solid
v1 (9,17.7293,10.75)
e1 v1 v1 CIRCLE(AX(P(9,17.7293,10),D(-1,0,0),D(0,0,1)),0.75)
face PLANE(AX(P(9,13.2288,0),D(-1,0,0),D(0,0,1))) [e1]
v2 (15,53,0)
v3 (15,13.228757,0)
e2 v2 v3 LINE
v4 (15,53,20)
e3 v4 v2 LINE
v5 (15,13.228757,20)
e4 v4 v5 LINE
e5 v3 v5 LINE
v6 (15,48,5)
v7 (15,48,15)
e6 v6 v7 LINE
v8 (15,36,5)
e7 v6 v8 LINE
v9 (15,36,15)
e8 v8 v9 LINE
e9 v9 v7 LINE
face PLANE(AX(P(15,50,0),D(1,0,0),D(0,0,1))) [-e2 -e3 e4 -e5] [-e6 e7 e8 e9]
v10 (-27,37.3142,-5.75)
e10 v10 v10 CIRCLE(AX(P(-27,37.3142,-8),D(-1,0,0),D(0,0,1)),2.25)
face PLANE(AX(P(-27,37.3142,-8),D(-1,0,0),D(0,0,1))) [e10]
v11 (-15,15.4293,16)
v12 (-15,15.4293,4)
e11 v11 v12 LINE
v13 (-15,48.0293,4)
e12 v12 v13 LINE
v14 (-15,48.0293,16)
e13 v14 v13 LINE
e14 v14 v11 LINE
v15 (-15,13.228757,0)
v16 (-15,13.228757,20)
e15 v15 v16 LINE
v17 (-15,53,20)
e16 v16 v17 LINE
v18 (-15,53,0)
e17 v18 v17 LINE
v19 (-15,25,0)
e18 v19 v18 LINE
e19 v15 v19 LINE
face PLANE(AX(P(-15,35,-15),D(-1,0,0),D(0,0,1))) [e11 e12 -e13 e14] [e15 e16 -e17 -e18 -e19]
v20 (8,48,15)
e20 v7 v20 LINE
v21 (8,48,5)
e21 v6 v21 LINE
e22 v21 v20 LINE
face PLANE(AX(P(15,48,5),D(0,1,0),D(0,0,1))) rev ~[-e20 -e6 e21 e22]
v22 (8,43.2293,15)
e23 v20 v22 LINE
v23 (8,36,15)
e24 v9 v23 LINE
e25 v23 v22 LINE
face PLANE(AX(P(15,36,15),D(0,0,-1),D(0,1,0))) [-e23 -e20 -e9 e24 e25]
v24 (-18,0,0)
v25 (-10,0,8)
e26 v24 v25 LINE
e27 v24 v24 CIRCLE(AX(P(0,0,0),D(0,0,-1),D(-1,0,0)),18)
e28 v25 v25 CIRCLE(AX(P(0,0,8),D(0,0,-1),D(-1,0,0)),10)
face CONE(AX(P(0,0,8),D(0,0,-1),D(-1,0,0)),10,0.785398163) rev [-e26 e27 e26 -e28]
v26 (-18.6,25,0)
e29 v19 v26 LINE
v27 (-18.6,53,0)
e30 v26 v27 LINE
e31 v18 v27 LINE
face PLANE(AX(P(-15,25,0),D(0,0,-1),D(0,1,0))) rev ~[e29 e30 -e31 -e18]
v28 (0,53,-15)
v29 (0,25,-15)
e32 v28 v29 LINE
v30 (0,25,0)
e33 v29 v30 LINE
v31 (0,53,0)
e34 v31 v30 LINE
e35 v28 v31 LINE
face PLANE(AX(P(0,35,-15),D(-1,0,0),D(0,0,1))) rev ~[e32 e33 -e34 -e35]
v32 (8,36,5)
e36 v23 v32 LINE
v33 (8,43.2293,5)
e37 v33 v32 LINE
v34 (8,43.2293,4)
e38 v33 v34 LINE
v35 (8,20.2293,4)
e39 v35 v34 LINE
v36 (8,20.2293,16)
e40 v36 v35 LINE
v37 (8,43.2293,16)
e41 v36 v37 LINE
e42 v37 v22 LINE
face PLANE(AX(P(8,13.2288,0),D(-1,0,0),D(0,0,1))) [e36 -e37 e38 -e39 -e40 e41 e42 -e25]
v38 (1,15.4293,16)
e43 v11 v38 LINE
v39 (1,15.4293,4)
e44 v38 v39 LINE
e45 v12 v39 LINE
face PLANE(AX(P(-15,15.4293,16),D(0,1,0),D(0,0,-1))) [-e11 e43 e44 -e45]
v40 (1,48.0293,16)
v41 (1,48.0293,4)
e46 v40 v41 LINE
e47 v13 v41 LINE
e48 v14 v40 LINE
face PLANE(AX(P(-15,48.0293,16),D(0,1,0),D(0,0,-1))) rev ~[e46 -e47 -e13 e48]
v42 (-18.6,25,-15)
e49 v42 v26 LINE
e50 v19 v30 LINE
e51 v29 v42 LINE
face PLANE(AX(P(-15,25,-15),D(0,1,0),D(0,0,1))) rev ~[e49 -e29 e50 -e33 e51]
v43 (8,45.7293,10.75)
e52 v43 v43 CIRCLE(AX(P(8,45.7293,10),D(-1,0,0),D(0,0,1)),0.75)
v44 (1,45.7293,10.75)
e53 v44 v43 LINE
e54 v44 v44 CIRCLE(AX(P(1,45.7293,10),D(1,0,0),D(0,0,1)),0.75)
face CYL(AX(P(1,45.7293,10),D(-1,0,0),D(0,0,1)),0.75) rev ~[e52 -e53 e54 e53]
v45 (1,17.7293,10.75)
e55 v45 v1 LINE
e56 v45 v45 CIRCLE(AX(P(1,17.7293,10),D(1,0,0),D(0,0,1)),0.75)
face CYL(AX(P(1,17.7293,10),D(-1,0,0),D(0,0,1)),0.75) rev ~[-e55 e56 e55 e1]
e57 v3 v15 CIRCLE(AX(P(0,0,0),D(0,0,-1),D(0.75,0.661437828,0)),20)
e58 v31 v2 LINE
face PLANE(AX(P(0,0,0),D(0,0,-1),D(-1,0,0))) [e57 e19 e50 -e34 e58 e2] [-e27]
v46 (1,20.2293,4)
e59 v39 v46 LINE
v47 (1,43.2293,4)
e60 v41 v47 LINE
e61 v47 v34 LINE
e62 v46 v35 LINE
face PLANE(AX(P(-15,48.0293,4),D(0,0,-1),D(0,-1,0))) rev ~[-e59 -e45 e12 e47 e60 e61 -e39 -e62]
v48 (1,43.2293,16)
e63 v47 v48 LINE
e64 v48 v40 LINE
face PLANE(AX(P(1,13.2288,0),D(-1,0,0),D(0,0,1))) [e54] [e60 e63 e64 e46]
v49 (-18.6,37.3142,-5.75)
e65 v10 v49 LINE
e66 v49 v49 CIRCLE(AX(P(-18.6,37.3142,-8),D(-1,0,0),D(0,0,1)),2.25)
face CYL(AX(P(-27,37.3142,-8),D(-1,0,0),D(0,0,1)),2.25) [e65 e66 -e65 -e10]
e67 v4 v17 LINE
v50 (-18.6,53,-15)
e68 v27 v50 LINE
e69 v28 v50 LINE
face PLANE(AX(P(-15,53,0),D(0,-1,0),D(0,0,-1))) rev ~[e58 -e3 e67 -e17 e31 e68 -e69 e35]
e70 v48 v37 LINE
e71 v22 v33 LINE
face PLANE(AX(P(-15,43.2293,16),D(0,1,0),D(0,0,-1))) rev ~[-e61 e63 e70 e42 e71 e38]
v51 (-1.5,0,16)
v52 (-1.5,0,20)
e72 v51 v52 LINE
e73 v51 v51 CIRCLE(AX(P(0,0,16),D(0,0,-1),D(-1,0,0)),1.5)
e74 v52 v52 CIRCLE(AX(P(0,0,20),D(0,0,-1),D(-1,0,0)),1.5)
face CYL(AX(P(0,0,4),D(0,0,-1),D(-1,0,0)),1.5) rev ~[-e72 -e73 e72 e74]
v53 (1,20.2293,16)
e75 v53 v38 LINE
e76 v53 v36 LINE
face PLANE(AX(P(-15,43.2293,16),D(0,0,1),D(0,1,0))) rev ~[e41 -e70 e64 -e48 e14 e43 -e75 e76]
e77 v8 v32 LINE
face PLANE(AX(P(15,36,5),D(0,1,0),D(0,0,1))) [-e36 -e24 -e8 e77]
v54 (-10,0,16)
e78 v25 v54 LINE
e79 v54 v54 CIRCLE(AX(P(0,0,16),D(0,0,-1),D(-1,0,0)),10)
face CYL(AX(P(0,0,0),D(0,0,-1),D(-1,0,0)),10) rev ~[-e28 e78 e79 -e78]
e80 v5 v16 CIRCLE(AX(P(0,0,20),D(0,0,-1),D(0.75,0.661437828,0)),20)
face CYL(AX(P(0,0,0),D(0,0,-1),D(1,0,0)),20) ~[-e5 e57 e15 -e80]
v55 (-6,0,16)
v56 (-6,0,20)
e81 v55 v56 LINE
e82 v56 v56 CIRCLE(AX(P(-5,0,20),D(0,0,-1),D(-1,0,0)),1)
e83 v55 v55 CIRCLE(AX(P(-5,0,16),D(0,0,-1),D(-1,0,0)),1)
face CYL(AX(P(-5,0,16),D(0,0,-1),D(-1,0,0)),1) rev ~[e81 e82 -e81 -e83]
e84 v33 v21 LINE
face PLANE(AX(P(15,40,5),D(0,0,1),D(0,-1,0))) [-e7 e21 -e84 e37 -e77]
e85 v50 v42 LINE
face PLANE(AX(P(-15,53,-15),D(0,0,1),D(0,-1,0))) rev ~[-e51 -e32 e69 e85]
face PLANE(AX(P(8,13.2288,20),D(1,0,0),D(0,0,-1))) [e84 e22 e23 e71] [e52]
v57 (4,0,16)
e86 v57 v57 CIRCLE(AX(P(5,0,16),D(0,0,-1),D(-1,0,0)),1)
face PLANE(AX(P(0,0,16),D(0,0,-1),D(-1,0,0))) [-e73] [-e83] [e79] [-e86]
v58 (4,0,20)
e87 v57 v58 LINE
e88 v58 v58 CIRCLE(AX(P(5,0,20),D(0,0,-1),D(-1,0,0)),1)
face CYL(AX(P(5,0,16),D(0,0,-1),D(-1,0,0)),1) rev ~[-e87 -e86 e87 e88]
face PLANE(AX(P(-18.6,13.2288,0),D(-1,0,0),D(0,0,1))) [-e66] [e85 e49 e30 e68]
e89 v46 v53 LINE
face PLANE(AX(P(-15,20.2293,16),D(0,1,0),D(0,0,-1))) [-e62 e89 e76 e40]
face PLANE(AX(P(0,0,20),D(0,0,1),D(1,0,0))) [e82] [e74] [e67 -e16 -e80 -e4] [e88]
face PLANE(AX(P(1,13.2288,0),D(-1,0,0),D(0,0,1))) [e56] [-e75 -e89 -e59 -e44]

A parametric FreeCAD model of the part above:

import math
import FreeCAD as App
import Part
import Sketcher


def edges_at(feature, points):
    """Names of the edges that pass closest to the given points."""
    edges = feature.Shape.Edges
    near = lambda p: min(range(len(edges)), key=lambda i: edges[i].distToShape(Part.Vertex(*p))[0])
    return sorted({f"Edge{near(p) + 1}" for p in points})

doc = App.newDocument("Part")
body = doc.addObject("PartDesign::Body", "Body")

# Sketch on XY plane
sketch1 = body.newObject("Sketcher::SketchObject", "Sketch")
sketch1.AttachmentSupport = (doc.getObject("XY_Plane"), [""])
sketch1.MapMode = "FlatFace"
sketch1.addGeometry([
    Part.ArcOfCircle(Part.Circle(App.Vector(0, 0, 0), App.Vector(0, 0, 1), 20), math.radians(139), math.radians(401)),
    Part.LineSegment(App.Vector(15, 13, 0), App.Vector(15, 50, 0)),
    Part.LineSegment(App.Vector(15, 50, 0), App.Vector(-15, 50, 0)),
    Part.LineSegment(App.Vector(-15, 50, 0), App.Vector(-15, 13, 0)),
], False)
sketch1.addConstraint([
    Sketcher.Constraint("Coincident", 0, 2, 1, 1),
    Sketcher.Constraint("Coincident", 1, 2, 2, 1),
    Sketcher.Constraint("Coincident", 2, 2, 3, 1),
    Sketcher.Constraint("Coincident", 3, 2, 0, 1),
    Sketcher.Constraint("Vertical", 1),
    Sketcher.Constraint("Horizontal", 2),
    Sketcher.Constraint("Vertical", 3),
    Sketcher.Constraint("Coincident", 0, 3, -1, 1),
    Sketcher.Constraint("Horizontal", 0, 2, 3, 2),
    Sketcher.Constraint("Radius", 0, 20.0),
    Sketcher.Constraint("DistanceX", 2, 2, 2, 1, 30.0),
    Sketcher.Constraint("DistanceY", -1, 1, 1, 2, 50.0),
])
pad1 = body.newObject("PartDesign::Pad", "Pad")
pad1.Profile = sketch1
pad1.Length = 20

# Sketch on XY plane
sketch2 = body.newObject("Sketcher::SketchObject", "Sketch001")
sketch2.AttachmentSupport = (doc.getObject("XY_Plane"), [""])
sketch2.MapMode = "FlatFace"
sketch2.AttachmentOffset = App.Placement(App.Vector(0, 0, 20), App.Rotation())
sketch2.addGeometry(Part.Circle(App.Vector(0, 0, 0), App.Vector(0, 0, 1), 10), False)
sketch2.addConstraint([
    Sketcher.Constraint("Coincident", 0, 3, -1, 1),
    Sketcher.Constraint("Diameter", 0, 20.0),
])
pocket1 = body.newObject("PartDesign::Pocket", "Pocket")
pocket1.Profile = sketch2
pocket1.Length = 15

# Sketch on YZ plane
sketch3 = body.newObject("Sketcher::SketchObject", "Sketch002")
sketch3.AttachmentSupport = (doc.getObject("YZ_Plane"), [""])
sketch3.MapMode = "FlatFace"
sketch3.AttachmentOffset = App.Placement(App.Vector(0, 0, -15), App.Rotation())
sketch3.addGeometry([
    Part.LineSegment(App.Vector(43, 16, 0), App.Vector(43, 4, 0)),
    Part.LineSegment(App.Vector(43, 4, 0), App.Vector(20, 4, 0)),
    Part.LineSegment(App.Vector(20, 4, 0), App.Vector(20, 16, 0)),
    Part.LineSegment(App.Vector(20, 16, 0), App.Vector(43, 16, 0)),
], False)
sketch3.addConstraint([
    Sketcher.Constraint("Coincident", 0, 2, 1, 1),
    Sketcher.Constraint("Coincident", 1, 2, 2, 1),
    Sketcher.Constraint("Coincident", 2, 2, 3, 1),
    Sketcher.Constraint("Coincident", 3, 2, 0, 1),
    Sketcher.Constraint("Vertical", 0),
    Sketcher.Constraint("Horizontal", 1),
    Sketcher.Constraint("Vertical", 2),
    Sketcher.Constraint("Horizontal", 3),
    Sketcher.Constraint("DistanceX", 1, 2, 1, 1, 23.0),
    Sketcher.Constraint("DistanceY", 0, 2, 0, 1, 12.0),
    Sketcher.Constraint("DistanceY", -1, 1, 0, 2, 4.0),
    Sketcher.Constraint("DistanceX", -1, 1, 0, 2, 43.2293),
])
pocket2 = body.newObject("PartDesign::Pocket", "Pocket001")
pocket2.Profile = sketch3
pocket2.Length = 23
pocket2.Reversed = True

# Sketch on YZ plane
sketch4 = body.newObject("Sketcher::SketchObject", "Sketch003")
sketch4.AttachmentSupport = (doc.getObject("YZ_Plane"), [""])
sketch4.MapMode = "FlatFace"
sketch4.AttachmentOffset = App.Placement(App.Vector(0, 0, -15), App.Rotation())
sketch4.addGeometry([
    Part.LineSegment(App.Vector(48, 4, 0), App.Vector(43.2, 4, 0)),  # 0
    Part.LineSegment(App.Vector(43.2, 4, 0), App.Vector(43.2, 16, 0)),  # 1
    Part.LineSegment(App.Vector(43.2, 16, 0), App.Vector(48, 16, 0)),  # 2
    Part.LineSegment(App.Vector(48, 16, 0), App.Vector(48, 4, 0)),  # 3
    Part.LineSegment(App.Vector(20.2, 16, 0), App.Vector(20.2, 4, 0)),  # 4
    Part.LineSegment(App.Vector(20.2, 4, 0), App.Vector(15.4, 4, 0)),  # 5
    Part.LineSegment(App.Vector(15.4, 4, 0), App.Vector(15.4, 16, 0)),  # 6
    Part.LineSegment(App.Vector(15.4, 16, 0), App.Vector(20.2, 16, 0)),  # 7
], False)
sketch4.addConstraint([
    Sketcher.Constraint("Coincident", 0, 2, 1, 1),
    Sketcher.Constraint("Coincident", 1, 2, 2, 1),
    Sketcher.Constraint("Coincident", 2, 2, 3, 1),
    Sketcher.Constraint("Coincident", 3, 2, 0, 1),
    Sketcher.Constraint("Coincident", 4, 2, 5, 1),
    Sketcher.Constraint("Coincident", 5, 2, 6, 1),
    Sketcher.Constraint("Coincident", 6, 2, 7, 1),
    Sketcher.Constraint("Coincident", 7, 2, 4, 1),
    Sketcher.Constraint("Horizontal", 0),
    Sketcher.Constraint("Vertical", 1),
    Sketcher.Constraint("Horizontal", 2),
    Sketcher.Constraint("Vertical", 3),
    Sketcher.Constraint("Vertical", 4),
    Sketcher.Constraint("Horizontal", 5),
    Sketcher.Constraint("Vertical", 6),
    Sketcher.Constraint("Horizontal", 7),
    Sketcher.Constraint("Horizontal", 3, 2, 4, 2),
    Sketcher.Constraint("Horizontal", 2, 2, 6, 2),
    Sketcher.Constraint("Equal", 2, 5),
    Sketcher.Constraint("DistanceY", 1, 1, 1, 2, 12.0),
    Sketcher.Constraint("DistanceX", 0, 2, 0, 1, 4.8),
    Sketcher.Constraint("DistanceY", -1, 1, 0, 2, 4.0),
    Sketcher.Constraint("DistanceX", 4, 2, 0, 2, 23.0),
    Sketcher.Constraint("DistanceX", -1, 1, 0, 2, 43.2293),
])
pocket3 = body.newObject("PartDesign::Pocket", "Pocket002")
pocket3.Profile = sketch4
pocket3.Length = 16
pocket3.Reversed = True

# Sketch on YZ plane
sketch5 = body.newObject("Sketcher::SketchObject", "Sketch004")
sketch5.AttachmentSupport = (doc.getObject("YZ_Plane"), [""])
sketch5.MapMode = "FlatFace"
sketch5.AttachmentOffset = App.Placement(App.Vector(0, 0, 1), App.Rotation())
sketch5.addGeometry([
    Part.Circle(App.Vector(45.7, 10, 0), App.Vector(0, 0, 1), 0.8),
    Part.Circle(App.Vector(17.7, 10, 0), App.Vector(0, 0, 1), 0.8),
], False)
sketch5.addConstraint([
    Sketcher.Constraint("Equal", 0, 1),
    Sketcher.Constraint("Horizontal", 0, 3, 1, 3),
    Sketcher.Constraint("Diameter", 0, 1.5),
    Sketcher.Constraint("DistanceY", -1, 1, 0, 3, 10.0),
    Sketcher.Constraint("DistanceX", 1, 3, 0, 3, 28.0),
    Sketcher.Constraint("DistanceX", -1, 1, 0, 3, 45.7293),
])
pocket4 = body.newObject("PartDesign::Pocket", "Pocket003")
pocket4.Profile = sketch5
pocket4.Length = 8
pocket4.Reversed = True

# Sketch on YZ plane
sketch6 = body.newObject("Sketcher::SketchObject", "Sketch005")
sketch6.AttachmentSupport = (doc.getObject("YZ_Plane"), [""])
sketch6.MapMode = "FlatFace"
sketch6.AttachmentOffset = App.Placement(App.Vector(0, 0, 15), App.Rotation())
sketch6.addGeometry([
    Part.LineSegment(App.Vector(36, 5, 0), App.Vector(40, 5, 0)),
    Part.LineSegment(App.Vector(40, 5, 0), App.Vector(40, 15, 0)),
    Part.LineSegment(App.Vector(40, 15, 0), App.Vector(36, 15, 0)),
    Part.LineSegment(App.Vector(36, 15, 0), App.Vector(36, 5, 0)),
], False)
sketch6.addConstraint([
    Sketcher.Constraint("Coincident", 0, 2, 1, 1),
    Sketcher.Constraint("Coincident", 1, 2, 2, 1),
    Sketcher.Constraint("Coincident", 2, 2, 3, 1),
    Sketcher.Constraint("Coincident", 3, 2, 0, 1),
    Sketcher.Constraint("Horizontal", 0),
    Sketcher.Constraint("Vertical", 1),
    Sketcher.Constraint("Horizontal", 2),
    Sketcher.Constraint("Vertical", 3),
    Sketcher.Constraint("DistanceY", 1, 1, 1, 2, 10.0),
    Sketcher.Constraint("DistanceY", -1, 1, 0, 2, 5.0),
    Sketcher.Constraint("DistanceX", 0, 1, 0, 2, 4.0),
    Sketcher.Constraint("DistanceX", -1, 1, 0, 2, 40.0),
])
pocket5 = body.newObject("PartDesign::Pocket", "Pocket004")
pocket5.Profile = sketch6
pocket5.Length = 15.8125

# Sketch on XY plane
sketch7 = body.newObject("Sketcher::SketchObject", "Sketch006")
sketch7.AttachmentSupport = (doc.getObject("XY_Plane"), [""])
sketch7.MapMode = "FlatFace"
sketch7.AttachmentOffset = App.Placement(App.Vector(0, 0, 5), App.Rotation())
sketch7.addGeometry([
    Part.Circle(App.Vector(0, 0, 0), App.Vector(0, 0, 1), 1.5),
    Part.Circle(App.Vector(7, 0, 0), App.Vector(0, 0, 1), 1.5),
    Part.Circle(App.Vector(-7, 0, 0), App.Vector(0, 0, 1), 1.5),
], False)
sketch7.addConstraint([
    Sketcher.Constraint("Coincident", 0, 3, -1, 1),
    Sketcher.Constraint("Equal", 0, 1),
    Sketcher.Constraint("Equal", 1, 2),
    Sketcher.Constraint("Symmetric", 1, 3, 2, 3, -1, 1),
    Sketcher.Constraint("PointOnObject", 1, 3, -1),
    Sketcher.Constraint("Diameter", 0, 3.0),
    Sketcher.Constraint("DistanceX", -1, 1, 1, 3, 7.0),
])
pocket6 = body.newObject("PartDesign::Pocket", "Pocket005")
pocket6.Profile = sketch7
pocket6.Length = 8

# Sketch on XZ plane
sketch8 = body.newObject("Sketcher::SketchObject", "Sketch007")
sketch8.AttachmentSupport = (doc.getObject("XZ_Plane"), [""])
sketch8.MapMode = "FlatFace"
sketch8.AttachmentOffset = App.Placement(App.Vector(0, 0, -50), App.Rotation())
sketch8.addGeometry([
    Part.LineSegment(App.Vector(14, 0, 0), App.Vector(-15, 0, 0)),
    Part.LineSegment(App.Vector(-15, 0, 0), App.Vector(-15, 20, 0)),
    Part.LineSegment(App.Vector(-15, 20, 0), App.Vector(14, 20, 0)),
    Part.LineSegment(App.Vector(14, 20, 0), App.Vector(14, 0, 0)),
], False)
sketch8.addConstraint([
    Sketcher.Constraint("Coincident", 0, 2, 1, 1),
    Sketcher.Constraint("Coincident", 1, 2, 2, 1),
    Sketcher.Constraint("Coincident", 2, 2, 3, 1),
    Sketcher.Constraint("Coincident", 3, 2, 0, 1),
    Sketcher.Constraint("Horizontal", 0),
    Sketcher.Constraint("Vertical", 1),
    Sketcher.Constraint("Horizontal", 2),
    Sketcher.Constraint("Vertical", 3),
    Sketcher.Constraint("PointOnObject", 0, 2, -1),
    Sketcher.Constraint("DistanceY", 1, 1, 1, 2, 20.0),
    Sketcher.Constraint("DistanceX", 0, 2, -1, 1, 15.0),
    Sketcher.Constraint("DistanceX", 0, 2, 0, 1, 29.4792),
])
pad2 = body.newObject("PartDesign::Pad", "Pad001")
pad2.Profile = sketch8
pad2.Length = 10
pad2.Reversed = True

# Sketch on YZ plane
sketch9 = body.newObject("Sketcher::SketchObject", "Sketch008")
sketch9.AttachmentSupport = (doc.getObject("YZ_Plane"), [""])
sketch9.MapMode = "FlatFace"
sketch9.AttachmentOffset = App.Placement(App.Vector(0, 0, 14.4792), App.Rotation())
sketch9.addGeometry([
    Part.LineSegment(App.Vector(50, 20, 0), App.Vector(50, 0, 0)),
    Part.LineSegment(App.Vector(50, 0, 0), App.Vector(60, 0, 0)),
    Part.LineSegment(App.Vector(60, 0, 0), App.Vector(60, 20, 0)),
    Part.LineSegment(App.Vector(60, 20, 0), App.Vector(50, 20, 0)),
], False)
sketch9.addConstraint([
    Sketcher.Constraint("Coincident", 0, 2, 1, 1),
    Sketcher.Constraint("Coincident", 1, 2, 2, 1),
    Sketcher.Constraint("Coincident", 2, 2, 3, 1),
    Sketcher.Constraint("Coincident", 3, 2, 0, 1),
    Sketcher.Constraint("Vertical", 0),
    Sketcher.Constraint("Horizontal", 1),
    Sketcher.Constraint("Vertical", 2),
    Sketcher.Constraint("Horizontal", 3),
    Sketcher.Constraint("PointOnObject", 0, 2, -1),
    Sketcher.Constraint("DistanceX", 1, 1, 1, 2, 10.0),
    Sketcher.Constraint("DistanceY", 0, 2, 0, 1, 20.0),
    Sketcher.Constraint("DistanceX", -1, 1, 0, 2, 50.0),
])
pocket7 = body.newObject("PartDesign::Pocket", "Pocket006")
pocket7.Profile = sketch9
pocket7.Length = 59.6125

# Sketch on XZ plane
sketch10 = body.newObject("Sketcher::SketchObject", "Sketch009")
sketch10.AttachmentSupport = (doc.getObject("XZ_Plane"), [""])
sketch10.MapMode = "FlatFace"
sketch10.AttachmentOffset = App.Placement(App.Vector(0, 0, -50), App.Rotation())
sketch10.addGeometry([
    Part.LineSegment(App.Vector(15, 20, 0), App.Vector(15, 0, 0)),
    Part.LineSegment(App.Vector(15, 0, 0), App.Vector(-15, 0, 0)),
    Part.LineSegment(App.Vector(-15, 0, 0), App.Vector(-15, 20, 0)),
    Part.LineSegment(App.Vector(-15, 20, 0), App.Vector(15, 20, 0)),
], False)
sketch10.addConstraint([
    Sketcher.Constraint("Coincident", 0, 2, 1, 1),
    Sketcher.Constraint("Coincident", 1, 2, 2, 1),
    Sketcher.Constraint("Coincident", 2, 2, 3, 1),
    Sketcher.Constraint("Coincident", 3, 2, 0, 1),
    Sketcher.Constraint("Vertical", 0),
    Sketcher.Constraint("Horizontal", 1),
    Sketcher.Constraint("Vertical", 2),
    Sketcher.Constraint("Horizontal", 3),
    Sketcher.Constraint("Symmetric", 0, 2, 1, 2, -1, 1),
    Sketcher.Constraint("DistanceX", 1, 2, 1, 1, 30.0),
    Sketcher.Constraint("DistanceY", 0, 2, 0, 1, 20.0),
])
pad3 = body.newObject("PartDesign::Pad", "Pad002")
pad3.Profile = sketch10
pad3.Length = 10
pad3.Reversed = True

# Sketch on XY plane
sketch11 = body.newObject("Sketcher::SketchObject", "Sketch010")
sketch11.AttachmentSupport = (doc.getObject("XY_Plane"), [""])
sketch11.MapMode = "FlatFace"
sketch11.addGeometry([
    Part.LineSegment(App.Vector(15, 35, 0), App.Vector(-15, 35, 0)),
    Part.LineSegment(App.Vector(-15, 35, 0), App.Vector(-15, 60, 0)),
    Part.LineSegment(App.Vector(-15, 60, 0), App.Vector(15, 60, 0)),
    Part.LineSegment(App.Vector(15, 60, 0), App.Vector(15, 35, 0)),
], False)
sketch11.addConstraint([
    Sketcher.Constraint("Coincident", 0, 2, 1, 1),
    Sketcher.Constraint("Coincident", 1, 2, 2, 1),
    Sketcher.Constraint("Coincident", 2, 2, 3, 1),
    Sketcher.Constraint("Coincident", 3, 2, 0, 1),
    Sketcher.Constraint("Horizontal", 0),
    Sketcher.Constraint("Vertical", 1),
    Sketcher.Constraint("Horizontal", 2),
    Sketcher.Constraint("Vertical", 3),
    Sketcher.Constraint("DistanceX", 0, 2, -1, 1, 15.0),
    Sketcher.Constraint("DistanceX", -1, 1, 2, 2, 15.0),
    Sketcher.Constraint("DistanceY", 1, 1, 1, 2, 25.0),
    Sketcher.Constraint("DistanceY", -1, 1, 0, 2, 35.0),
])
pad4 = body.newObject("PartDesign::Pad", "Pad003")
pad4.Profile = sketch11
pad4.Length = 10
pad4.Reversed = True

# Sketch on XY plane
sketch12 = body.newObject("Sketcher::SketchObject", "Sketch011")
sketch12.AttachmentSupport = (doc.getObject("XY_Plane"), [""])
sketch12.MapMode = "FlatFace"
sketch12.AttachmentOffset = App.Placement(App.Vector(0, 0, 20), App.Rotation())
sketch12.addGeometry([
    Part.LineSegment(App.Vector(0, 60, 0), App.Vector(-15, 60, 0)),
    Part.LineSegment(App.Vector(-15, 60, 0), App.Vector(-15, 35, 0)),
    Part.LineSegment(App.Vector(-15, 35, 0), App.Vector(0, 35, 0)),
    Part.LineSegment(App.Vector(0, 35, 0), App.Vector(0, 60, 0)),
], False)
sketch12.addConstraint([
    Sketcher.Constraint("Coincident", 0, 2, 1, 1),
    Sketcher.Constraint("Coincident", 1, 2, 2, 1),
    Sketcher.Constraint("Coincident", 2, 2, 3, 1),
    Sketcher.Constraint("Coincident", 3, 2, 0, 1),
    Sketcher.Constraint("Horizontal", 0),
    Sketcher.Constraint("Vertical", 1),
    Sketcher.Constraint("Horizontal", 2),
    Sketcher.Constraint("Vertical", 3),
    Sketcher.Constraint("PointOnObject", 2, 2, -2),
    Sketcher.Constraint("DistanceY", 1, 2, 1, 1, 25.0),
    Sketcher.Constraint("DistanceX", 0, 2, 0, 1, 15.0),
    Sketcher.Constraint("DistanceY", -1, 1, 0, 2, 60.0),
])
pad5 = body.newObject("PartDesign::Pad", "Pad004")
pad5.Profile = sketch12
pad5.Length = 10

# Sketch on XY plane
sketch13 = body.newObject("Sketcher::SketchObject", "Sketch012")
sketch13.AttachmentSupport = (doc.getObject("XY_Plane"), [""])
sketch13.MapMode = "FlatFace"
sketch13.AttachmentOffset = App.Placement(App.Vector(0, 0, -10), App.Rotation())
sketch13.addGeometry([
    Part.LineSegment(App.Vector(15, 60, 0), App.Vector(15, 35, 0)),
    Part.LineSegment(App.Vector(15, 35, 0), App.Vector(0, 35, 0)),
    Part.LineSegment(App.Vector(0, 35, 0), App.Vector(0, 60, 0)),
    Part.LineSegment(App.Vector(0, 60, 0), App.Vector(15, 60, 0)),
], False)
sketch13.addConstraint([
    Sketcher.Constraint("Coincident", 0, 2, 1, 1),
    Sketcher.Constraint("Coincident", 1, 2, 2, 1),
    Sketcher.Constraint("Coincident", 2, 2, 3, 1),
    Sketcher.Constraint("Coincident", 3, 2, 0, 1),
    Sketcher.Constraint("Vertical", 0),
    Sketcher.Constraint("Horizontal", 1),
    Sketcher.Constraint("Vertical", 2),
    Sketcher.Constraint("Horizontal", 3),
    Sketcher.Constraint("PointOnObject", 1, 2, -2),
    Sketcher.Constraint("DistanceX", 1, 2, 1, 1, 15.0),
    Sketcher.Constraint("DistanceY", 0, 2, 0, 1, 25.0),
    Sketcher.Constraint("DistanceY", -1, 1, 0, 2, 35.0),
])
pocket8 = body.newObject("PartDesign::Pocket", "Pocket007")
pocket8.Profile = sketch13
pocket8.Length = 10
pocket8.Reversed = True

# Sketch on XY plane
sketch14 = body.newObject("Sketcher::SketchObject", "Sketch013")
sketch14.AttachmentSupport = (doc.getObject("XY_Plane"), [""])
sketch14.MapMode = "FlatFace"
sketch14.AttachmentOffset = App.Placement(App.Vector(0, 0, 20), App.Rotation())
sketch14.addGeometry(Part.Circle(App.Vector(0, 0, 0), App.Vector(0, 0, 1), 10), False)
sketch14.addConstraint([
    Sketcher.Constraint("Coincident", 0, 3, -1, 1),
    Sketcher.Constraint("Diameter", 0, 20.0),
])
pad6 = body.newObject("PartDesign::Pad", "Pad005")
pad6.Profile = sketch14
pad6.Length = 16
pad6.Reversed = True

# Sketch on XY plane
sketch15 = body.newObject("Sketcher::SketchObject", "Sketch014")
sketch15.AttachmentSupport = (doc.getObject("XY_Plane"), [""])
sketch15.MapMode = "FlatFace"
sketch15.addGeometry([
    Part.Circle(App.Vector(0, 0, 0), App.Vector(0, 0, 1), 10),
    Part.Circle(App.Vector(0, 0, 0), App.Vector(0, 0, 1), 1.5),
], False)
sketch15.addConstraint([
    Sketcher.Constraint("Coincident", 0, 3, -1, 1),
    Sketcher.Constraint("Coincident", 1, 3, -1, 1),
    Sketcher.Constraint("Diameter", 0, 20.0),
    Sketcher.Constraint("Diameter", 1, 3.0),
])
pocket9 = body.newObject("PartDesign::Pocket", "Pocket008")
pocket9.Profile = sketch15
pocket9.Length = 16
pocket9.Reversed = True

# Sketch on XY plane
sketch16 = body.newObject("Sketcher::SketchObject", "Sketch015")
sketch16.AttachmentSupport = (doc.getObject("XY_Plane"), [""])
sketch16.MapMode = "FlatFace"
sketch16.AttachmentOffset = App.Placement(App.Vector(0, 0, 4), App.Rotation())
sketch16.addGeometry(Part.Circle(App.Vector(0, 0, 0), App.Vector(0, 0, 1), 1.5), False)
sketch16.addConstraint([
    Sketcher.Constraint("Coincident", 0, 3, -1, 1),
    Sketcher.Constraint("Diameter", 0, 3.0),
])
pocket10 = body.newObject("PartDesign::Pocket", "Pocket009")
pocket10.Profile = sketch16
pocket10.Length = 30.0375
pocket10.Reversed = True

# Sketch on XY plane
sketch17 = body.newObject("Sketcher::SketchObject", "Sketch016")
sketch17.AttachmentSupport = (doc.getObject("XY_Plane"), [""])
sketch17.MapMode = "FlatFace"
sketch17.AttachmentOffset = App.Placement(App.Vector(0, 0, 16), App.Rotation())
sketch17.addGeometry([
    Part.Circle(App.Vector(-5, 0, 0), App.Vector(0, 0, 1), 1),
    Part.Circle(App.Vector(5, 0, 0), App.Vector(0, 0, 1), 1),
], False)
sketch17.addConstraint([
    Sketcher.Constraint("Equal", 0, 1),
    Sketcher.Constraint("Symmetric", 0, 3, 1, 3, -1, 1),
    Sketcher.Constraint("PointOnObject", 0, 3, -1),
    Sketcher.Constraint("Diameter", 0, 2.0),
    Sketcher.Constraint("DistanceX", 0, 3, -1, 1, 5.0),
])
pocket11 = body.newObject("PartDesign::Pocket", "Pocket010")
pocket11.Profile = sketch17
pocket11.Length = 138.2375
pocket11.Reversed = True
doc.recompute()

chamfer = body.newObject("PartDesign::Chamfer", "Chamfer")
chamfer.Base = (pocket11, edges_at(pocket11, [(10, 0, 0)]))
chamfer.Size = 8

# Sketch on YZ plane
sketch18 = body.newObject("Sketcher::SketchObject", "Sketch017")
sketch18.AttachmentSupport = (doc.getObject("YZ_Plane"), [""])
sketch18.MapMode = "FlatFace"
sketch18.AttachmentOffset = App.Placement(App.Vector(0, 0, 15), App.Rotation())
sketch18.addGeometry([
    Part.LineSegment(App.Vector(48, 15, 0), App.Vector(40, 15, 0)),
    Part.LineSegment(App.Vector(40, 15, 0), App.Vector(40, 5, 0)),
    Part.LineSegment(App.Vector(40, 5, 0), App.Vector(48, 5, 0)),
    Part.LineSegment(App.Vector(48, 5, 0), App.Vector(48, 15, 0)),
], False)
sketch18.addConstraint([
    Sketcher.Constraint("Coincident", 0, 2, 1, 1),
    Sketcher.Constraint("Coincident", 1, 2, 2, 1),
    Sketcher.Constraint("Coincident", 2, 2, 3, 1),
    Sketcher.Constraint("Coincident", 3, 2, 0, 1),
    Sketcher.Constraint("Horizontal", 0),
    Sketcher.Constraint("Vertical", 1),
    Sketcher.Constraint("Horizontal", 2),
    Sketcher.Constraint("Vertical", 3),
    Sketcher.Constraint("DistanceX", 0, 2, 0, 1, 8.0),
    Sketcher.Constraint("DistanceY", 1, 2, 1, 1, 10.0),
    Sketcher.Constraint("DistanceX", -1, 1, 0, 2, 40.0),
    Sketcher.Constraint("DistanceY", -1, 1, 0, 2, 15.0),
])
pocket12 = body.newObject("PartDesign::Pocket", "Pocket011")
pocket12.Profile = sketch18
pocket12.Length = 7

# Sketch on YZ plane
sketch19 = body.newObject("Sketcher::SketchObject", "Sketch018")
sketch19.AttachmentSupport = (doc.getObject("YZ_Plane"), [""])
sketch19.MapMode = "FlatFace"
sketch19.AttachmentOffset = App.Placement(App.Vector(0, 0, -15), App.Rotation())
sketch19.addGeometry([
    Part.LineSegment(App.Vector(35, 20, 0), App.Vector(35, 30, 0)),
    Part.LineSegment(App.Vector(35, 30, 0), App.Vector(62, 30, 0)),
    Part.LineSegment(App.Vector(62, 30, 0), App.Vector(62, 20, 0)),
    Part.LineSegment(App.Vector(62, 20, 0), App.Vector(35, 20, 0)),
], False)
sketch19.addConstraint([
    Sketcher.Constraint("Coincident", 0, 2, 1, 1),
    Sketcher.Constraint("Coincident", 1, 2, 2, 1),
    Sketcher.Constraint("Coincident", 2, 2, 3, 1),
    Sketcher.Constraint("Coincident", 3, 2, 0, 1),
    Sketcher.Constraint("Vertical", 0),
    Sketcher.Constraint("Horizontal", 1),
    Sketcher.Constraint("Vertical", 2),
    Sketcher.Constraint("Horizontal", 3),
    Sketcher.Constraint("DistanceY", 0, 1, 0, 2, 10.0),
    Sketcher.Constraint("DistanceX", -1, 1, 0, 2, 35.0),
    Sketcher.Constraint("DistanceY", -1, 1, 0, 2, 30.0),
    Sketcher.Constraint("DistanceX", 1, 1, 1, 2, 26.6677),
])
pocket13 = body.newObject("PartDesign::Pocket", "Pocket012")
pocket13.Profile = sketch19
pocket13.Length = 36.0375
pocket13.Reversed = True

# Sketch on XY plane
sketch20 = body.newObject("Sketcher::SketchObject", "Sketch019")
sketch20.AttachmentSupport = (doc.getObject("XY_Plane"), [""])
sketch20.MapMode = "FlatFace"
sketch20.AttachmentOffset = App.Placement(App.Vector(0, 0, -10), App.Rotation())
sketch20.addGeometry([
    Part.LineSegment(App.Vector(0, 60, 0), App.Vector(0, 35, 0)),
    Part.LineSegment(App.Vector(0, 35, 0), App.Vector(-15, 35, 0)),
    Part.LineSegment(App.Vector(-15, 35, 0), App.Vector(-15, 60, 0)),
    Part.LineSegment(App.Vector(-15, 60, 0), App.Vector(0, 60, 0)),
], False)
sketch20.addConstraint([
    Sketcher.Constraint("Coincident", 0, 2, 1, 1),
    Sketcher.Constraint("Coincident", 1, 2, 2, 1),
    Sketcher.Constraint("Coincident", 2, 2, 3, 1),
    Sketcher.Constraint("Coincident", 3, 2, 0, 1),
    Sketcher.Constraint("Vertical", 0),
    Sketcher.Constraint("Horizontal", 1),
    Sketcher.Constraint("Vertical", 2),
    Sketcher.Constraint("Horizontal", 3),
    Sketcher.Constraint("PointOnObject", 0, 2, -2),
    Sketcher.Constraint("DistanceX", 1, 2, 1, 1, 15.0),
    Sketcher.Constraint("DistanceY", 0, 2, 0, 1, 25.0),
    Sketcher.Constraint("DistanceY", -1, 1, 0, 2, 35.0),
])
pad7 = body.newObject("PartDesign::Pad", "Pad006")
pad7.Profile = sketch20
pad7.Length = 5
pad7.Reversed = True

# Sketch on XZ plane
sketch21 = body.newObject("Sketcher::SketchObject", "Sketch020")
sketch21.AttachmentSupport = (doc.getObject("XZ_Plane"), [""])
sketch21.MapMode = "FlatFace"
sketch21.AttachmentOffset = App.Placement(App.Vector(0, 0, -35), App.Rotation())
sketch21.addGeometry([
    Part.LineSegment(App.Vector(-15, -15, 0), App.Vector(0, -15, 0)),
    Part.LineSegment(App.Vector(0, -15, 0), App.Vector(0, 0, 0)),
    Part.LineSegment(App.Vector(0, 0, 0), App.Vector(-15, 0, 0)),
    Part.LineSegment(App.Vector(-15, 0, 0), App.Vector(-15, -15, 0)),
], False)
sketch21.addConstraint([
    Sketcher.Constraint("Coincident", 0, 2, 1, 1),
    Sketcher.Constraint("Coincident", 1, 2, 2, 1),
    Sketcher.Constraint("Coincident", 2, 2, 3, 1),
    Sketcher.Constraint("Coincident", 3, 2, 0, 1),
    Sketcher.Constraint("Horizontal", 0),
    Sketcher.Constraint("Vertical", 1),
    Sketcher.Constraint("Horizontal", 2),
    Sketcher.Constraint("Vertical", 3),
    Sketcher.Constraint("Coincident", 1, 2, -1, 1),
    Sketcher.Constraint("Equal", 2, 1),
    Sketcher.Constraint("DistanceX", 0, 1, 0, 2, 15.0),
])
pad8 = body.newObject("PartDesign::Pad", "Pad007")
pad8.Profile = sketch21
pad8.Length = 10

# Sketch on YZ plane
sketch22 = body.newObject("Sketcher::SketchObject", "Sketch021")
sketch22.AttachmentSupport = (doc.getObject("YZ_Plane"), [""])
sketch22.MapMode = "FlatFace"
sketch22.AttachmentOffset = App.Placement(App.Vector(0, 0, -15), App.Rotation())
sketch22.addGeometry(Part.Circle(App.Vector(37.3, -8, 0), App.Vector(0, 0, 1), 2.5), False)
sketch22.addConstraint([
    Sketcher.Constraint("Diameter", 0, 5.0),
    Sketcher.Constraint("DistanceY", 0, 3, -1, 1, 8.0),
    Sketcher.Constraint("DistanceX", -1, 1, 0, 3, 37.3142),
])
pad9 = body.newObject("PartDesign::Pad", "Pad008")
pad9.Profile = sketch22
pad9.Length = 6
pad9.Reversed = True

# Sketch on XZ plane
sketch23 = body.newObject("Sketcher::SketchObject", "Sketch022")
sketch23.AttachmentSupport = (doc.getObject("XZ_Plane"), [""])
sketch23.MapMode = "FlatFace"
sketch23.AttachmentOffset = App.Placement(App.Vector(0, 0, -60), App.Rotation())
sketch23.addGeometry([
    Part.LineSegment(App.Vector(-15, -15, 0), App.Vector(-15, 20, 0)),  # 0
    Part.LineSegment(App.Vector(-15, 20, 0), App.Vector(15, 20, 0)),  # 1
    Part.LineSegment(App.Vector(15, 20, 0), App.Vector(15, 0, 0)),  # 2
    Part.LineSegment(App.Vector(15, 0, 0), App.Vector(0, 0, 0)),  # 3
    Part.LineSegment(App.Vector(0, 0, 0), App.Vector(0, -15, 0)),  # 4
    Part.LineSegment(App.Vector(0, -15, 0), App.Vector(-15, -15, 0)),  # 5
], False)
sketch23.addConstraint([
    Sketcher.Constraint("Coincident", 0, 2, 1, 1),
    Sketcher.Constraint("Coincident", 1, 2, 2, 1),
    Sketcher.Constraint("Coincident", 2, 2, 3, 1),
    Sketcher.Constraint("Coincident", 3, 2, 4, 1),
    Sketcher.Constraint("Coincident", 4, 2, 5, 1),
    Sketcher.Constraint("Coincident", 5, 2, 0, 1),
    Sketcher.Constraint("Vertical", 0),
    Sketcher.Constraint("Horizontal", 1),
    Sketcher.Constraint("Vertical", 2),
    Sketcher.Constraint("Horizontal", 3),
    Sketcher.Constraint("Vertical", 4),
    Sketcher.Constraint("Horizontal", 5),
    Sketcher.Constraint("Coincident", 3, 2, -1, 1),
    Sketcher.Constraint("Equal", 3, 5),
    Sketcher.Constraint("Equal", 5, 4),
    Sketcher.Constraint("DistanceX", 1, 1, 1, 2, 30.0),
    Sketcher.Constraint("DistanceY", 0, 1, 0, 2, 35.0),
])
pocket14 = body.newObject("PartDesign::Pocket", "Pocket013")
pocket14.Profile = sketch23
pocket14.Length = 7
pocket14.Reversed = True

# Sketch on YZ plane
sketch24 = body.newObject("Sketcher::SketchObject", "Sketch023")
sketch24.AttachmentSupport = (doc.getObject("YZ_Plane"), [""])
sketch24.MapMode = "FlatFace"
sketch24.AttachmentOffset = App.Placement(App.Vector(0, 0, -21), App.Rotation())
sketch24.addGeometry(Part.Circle(App.Vector(37.3, -8, 0), App.Vector(0, 0, 1), 2.5), False)
sketch24.addConstraint([
    Sketcher.Constraint("Diameter", 0, 5.0),
    Sketcher.Constraint("DistanceY", 0, 3, -1, 1, 8.0),
    Sketcher.Constraint("DistanceX", -1, 1, 0, 3, 37.3142),
])
pad10 = body.newObject("PartDesign::Pad", "Pad009")
pad10.Profile = sketch24
pad10.Length = 6
pad10.Reversed = True

# Sketch on YZ plane
sketch25 = body.newObject("Sketcher::SketchObject", "Sketch024")
sketch25.AttachmentSupport = (doc.getObject("YZ_Plane"), [""])
sketch25.MapMode = "FlatFace"
sketch25.AttachmentOffset = App.Placement(App.Vector(0, 0, -15), App.Rotation())
sketch25.addGeometry([
    Part.LineSegment(App.Vector(53, 0, 0), App.Vector(53, -15, 0)),  # 0
    Part.LineSegment(App.Vector(53, -15, 0), App.Vector(25, -15, 0)),  # 1
    Part.LineSegment(App.Vector(25, -15, 0), App.Vector(25, 0, 0)),  # 2
    Part.LineSegment(App.Vector(25, 0, 0), App.Vector(53, 0, 0)),  # 3
    Part.Circle(App.Vector(37.3, -8, 0), App.Vector(0, 0, 1), 2.5),  # 4
], False)
sketch25.addConstraint([
    Sketcher.Constraint("Coincident", 0, 2, 1, 1),
    Sketcher.Constraint("Coincident", 1, 2, 2, 1),
    Sketcher.Constraint("Coincident", 2, 2, 3, 1),
    Sketcher.Constraint("Coincident", 3, 2, 0, 1),
    Sketcher.Constraint("Vertical", 0),
    Sketcher.Constraint("Horizontal", 1),
    Sketcher.Constraint("Vertical", 2),
    Sketcher.Constraint("Horizontal", 3),
    Sketcher.Constraint("PointOnObject", 2, 2, -1),
    Sketcher.Constraint("Diameter", 4, 5.0),
    Sketcher.Constraint("DistanceX", 1, 2, 1, 1, 28.0),
    Sketcher.Constraint("DistanceY", 0, 2, 0, 1, 15.0),
    Sketcher.Constraint("DistanceY", 4, 3, -1, 1, 8.0),
    Sketcher.Constraint("DistanceX", -1, 1, 0, 2, 53.0),
    Sketcher.Constraint("DistanceX", -1, 1, 4, 3, 37.3142),
])
pad11 = body.newObject("PartDesign::Pad", "Pad010")
pad11.Profile = sketch25
pad11.Length = 3.6
pad11.Reversed = True

# Sketch on YZ plane
sketch26 = body.newObject("Sketcher::SketchObject", "Sketch025")
sketch26.AttachmentSupport = (doc.getObject("YZ_Plane"), [""])
sketch26.MapMode = "FlatFace"
sketch26.AttachmentOffset = App.Placement(App.Vector(0, 0, -27), App.Rotation())
sketch26.addGeometry([
    Part.Circle(App.Vector(37.3, -8, 0), App.Vector(0, 0, 1), 2.5),
    Part.Circle(App.Vector(37.3, -8, 0), App.Vector(0, 0, 1), 2.2),
], False)
sketch26.addConstraint([
    Sketcher.Constraint("Coincident", 1, 3, 0, 3),
    Sketcher.Constraint("Diameter", 1, 4.5),
    Sketcher.Constraint("Diameter", 0, 5.0),
    Sketcher.Constraint("DistanceY", 0, 3, -1, 1, 8.0),
    Sketcher.Constraint("DistanceX", -1, 1, 0, 3, 37.3142),
])
pocket15 = body.newObject("PartDesign::Pocket", "Pocket014")
pocket15.Profile = sketch26
pocket15.Length = 8.4
pocket15.Reversed = True

doc.recompute()
